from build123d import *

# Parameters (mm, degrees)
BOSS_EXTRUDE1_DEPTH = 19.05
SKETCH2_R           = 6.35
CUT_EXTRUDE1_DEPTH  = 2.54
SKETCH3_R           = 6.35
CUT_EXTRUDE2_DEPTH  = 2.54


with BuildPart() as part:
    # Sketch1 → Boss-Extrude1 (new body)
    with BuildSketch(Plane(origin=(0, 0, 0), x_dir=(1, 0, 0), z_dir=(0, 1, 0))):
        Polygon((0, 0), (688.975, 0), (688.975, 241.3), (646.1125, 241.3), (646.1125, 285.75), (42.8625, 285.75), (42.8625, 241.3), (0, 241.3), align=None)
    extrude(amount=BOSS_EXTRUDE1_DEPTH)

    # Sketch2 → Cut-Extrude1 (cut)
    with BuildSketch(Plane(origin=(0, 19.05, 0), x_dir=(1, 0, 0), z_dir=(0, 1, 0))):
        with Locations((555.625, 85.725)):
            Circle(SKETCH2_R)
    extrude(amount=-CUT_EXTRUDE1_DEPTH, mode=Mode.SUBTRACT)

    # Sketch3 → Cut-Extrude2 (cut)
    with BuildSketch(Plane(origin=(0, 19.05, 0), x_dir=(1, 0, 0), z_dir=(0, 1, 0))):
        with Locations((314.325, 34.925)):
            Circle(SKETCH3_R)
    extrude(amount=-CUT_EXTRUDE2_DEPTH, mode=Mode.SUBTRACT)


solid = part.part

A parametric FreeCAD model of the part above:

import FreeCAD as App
import Part
import Sketcher

V = App.Vector
Q = App.Units.Quantity


def add_polygon(sketch, points):
    """Adds a closed chain of lines whose ends are joined by coincident constraints."""
    first, n = sketch.GeometryCount, len(points)
    for a, b in zip(points, points[1:] + points[:1]):
        sketch.addGeometry(Part.LineSegment(App.Vector(*a, 0), App.Vector(*b, 0)), False)
    for i in range(n):
        sketch.addConstraint(Sketcher.Constraint("Coincident", first + i, 2, first + (i + 1) % n, 1))

doc = App.newDocument("Part")
body = doc.addObject("PartDesign::Body", "Body")

sketch1 = body.newObject("Sketcher::SketchObject", "Sketch")
sketch1.AttachmentSupport = (doc.getObject("XZ_Plane"), [""])
sketch1.MapMode = "FlatFace"
add_polygon(sketch1, [(0, 0), (689, 0), (689, -241), (646, -241), (646, -286), (43, -286), (43, -241), (0, -241)])
sketch1.addConstraint([
    Sketcher.Constraint("Horizontal", 0),
    Sketcher.Constraint("Vertical", 1),
    Sketcher.Constraint("Horizontal", 2),
    Sketcher.Constraint("Vertical", 3),
    Sketcher.Constraint("Horizontal", 4),
    Sketcher.Constraint("Vertical", 5),
    Sketcher.Constraint("Horizontal", 6),
    Sketcher.Constraint("Vertical", 7),
    Sketcher.Constraint("Coincident", 7, 2, -1, 1),
    Sketcher.Constraint("Horizontal", 2, 2, 5, 2),
    Sketcher.Constraint("Equal", 2, 6),
    Sketcher.Constraint("DistanceY", 1, 2, 1, 1, Q("9.5 in")),
    Sketcher.Constraint("DistanceX", 4, 2, 4, 1, Q("23.75 in")),
    Sketcher.Constraint("DistanceY", 3, 2, 3, 1, Q("1.75 in")),
    Sketcher.Constraint("DistanceX", 0, 1, 0, 2, Q("27.125 in")),
])
pad1 = body.newObject("PartDesign::Pad", "Pad")
pad1.Profile = sketch1
pad1.Length = Q("0.75 in")
pad1.Reversed = True

sketch2 = body.newObject("Sketcher::SketchObject", "Sketch001")
sketch2.AttachmentSupport = (doc.getObject("XZ_Plane"), [""])
sketch2.MapMode = "FlatFace"
sketch2.AttachmentOffset = App.Placement(V(0, 0, -0.75 * 25.4), App.Rotation())
sketch2.addGeometry(Part.Circle(V(556, -86, 0), V(0, 0, 1), 6), False)
sketch2.addConstraint([
    Sketcher.Constraint("Diameter", 0, Q("0.5 in")),
    Sketcher.Constraint("DistanceX", -1, 1, 0, 3, Q("21.875 in")),
    Sketcher.Constraint("DistanceY", 0, 3, -1, 1, Q("3.375 in")),
])
pocket1 = body.newObject("PartDesign::Pocket", "Pocket")
pocket1.Profile = sketch2
pocket1.Length = Q("0.1 in")
pocket1.Reversed = True

sketch3 = body.newObject("Sketcher::SketchObject", "Sketch002")
sketch3.AttachmentSupport = (doc.getObject("XZ_Plane"), [""])
sketch3.MapMode = "FlatFace"
sketch3.AttachmentOffset = App.Placement(V(0, 0, -0.75 * 25.4), App.Rotation())
sketch3.addGeometry(Part.Circle(V(314, -35, 0), V(0, 0, 1), 6), False)
sketch3.addConstraint([
    Sketcher.Constraint("Diameter", 0, Q("0.5 in")),
    Sketcher.Constraint("DistanceX", -1, 1, 0, 3, Q("12.375 in")),
    Sketcher.Constraint("DistanceY", 0, 3, -1, 1, Q("1.375 in")),
])
pocket2 = body.newObject("PartDesign::Pocket", "Pocket001")
pocket2.Profile = sketch3
pocket2.Length = Q("0.1 in")
pocket2.Reversed = True

doc.recompute()
